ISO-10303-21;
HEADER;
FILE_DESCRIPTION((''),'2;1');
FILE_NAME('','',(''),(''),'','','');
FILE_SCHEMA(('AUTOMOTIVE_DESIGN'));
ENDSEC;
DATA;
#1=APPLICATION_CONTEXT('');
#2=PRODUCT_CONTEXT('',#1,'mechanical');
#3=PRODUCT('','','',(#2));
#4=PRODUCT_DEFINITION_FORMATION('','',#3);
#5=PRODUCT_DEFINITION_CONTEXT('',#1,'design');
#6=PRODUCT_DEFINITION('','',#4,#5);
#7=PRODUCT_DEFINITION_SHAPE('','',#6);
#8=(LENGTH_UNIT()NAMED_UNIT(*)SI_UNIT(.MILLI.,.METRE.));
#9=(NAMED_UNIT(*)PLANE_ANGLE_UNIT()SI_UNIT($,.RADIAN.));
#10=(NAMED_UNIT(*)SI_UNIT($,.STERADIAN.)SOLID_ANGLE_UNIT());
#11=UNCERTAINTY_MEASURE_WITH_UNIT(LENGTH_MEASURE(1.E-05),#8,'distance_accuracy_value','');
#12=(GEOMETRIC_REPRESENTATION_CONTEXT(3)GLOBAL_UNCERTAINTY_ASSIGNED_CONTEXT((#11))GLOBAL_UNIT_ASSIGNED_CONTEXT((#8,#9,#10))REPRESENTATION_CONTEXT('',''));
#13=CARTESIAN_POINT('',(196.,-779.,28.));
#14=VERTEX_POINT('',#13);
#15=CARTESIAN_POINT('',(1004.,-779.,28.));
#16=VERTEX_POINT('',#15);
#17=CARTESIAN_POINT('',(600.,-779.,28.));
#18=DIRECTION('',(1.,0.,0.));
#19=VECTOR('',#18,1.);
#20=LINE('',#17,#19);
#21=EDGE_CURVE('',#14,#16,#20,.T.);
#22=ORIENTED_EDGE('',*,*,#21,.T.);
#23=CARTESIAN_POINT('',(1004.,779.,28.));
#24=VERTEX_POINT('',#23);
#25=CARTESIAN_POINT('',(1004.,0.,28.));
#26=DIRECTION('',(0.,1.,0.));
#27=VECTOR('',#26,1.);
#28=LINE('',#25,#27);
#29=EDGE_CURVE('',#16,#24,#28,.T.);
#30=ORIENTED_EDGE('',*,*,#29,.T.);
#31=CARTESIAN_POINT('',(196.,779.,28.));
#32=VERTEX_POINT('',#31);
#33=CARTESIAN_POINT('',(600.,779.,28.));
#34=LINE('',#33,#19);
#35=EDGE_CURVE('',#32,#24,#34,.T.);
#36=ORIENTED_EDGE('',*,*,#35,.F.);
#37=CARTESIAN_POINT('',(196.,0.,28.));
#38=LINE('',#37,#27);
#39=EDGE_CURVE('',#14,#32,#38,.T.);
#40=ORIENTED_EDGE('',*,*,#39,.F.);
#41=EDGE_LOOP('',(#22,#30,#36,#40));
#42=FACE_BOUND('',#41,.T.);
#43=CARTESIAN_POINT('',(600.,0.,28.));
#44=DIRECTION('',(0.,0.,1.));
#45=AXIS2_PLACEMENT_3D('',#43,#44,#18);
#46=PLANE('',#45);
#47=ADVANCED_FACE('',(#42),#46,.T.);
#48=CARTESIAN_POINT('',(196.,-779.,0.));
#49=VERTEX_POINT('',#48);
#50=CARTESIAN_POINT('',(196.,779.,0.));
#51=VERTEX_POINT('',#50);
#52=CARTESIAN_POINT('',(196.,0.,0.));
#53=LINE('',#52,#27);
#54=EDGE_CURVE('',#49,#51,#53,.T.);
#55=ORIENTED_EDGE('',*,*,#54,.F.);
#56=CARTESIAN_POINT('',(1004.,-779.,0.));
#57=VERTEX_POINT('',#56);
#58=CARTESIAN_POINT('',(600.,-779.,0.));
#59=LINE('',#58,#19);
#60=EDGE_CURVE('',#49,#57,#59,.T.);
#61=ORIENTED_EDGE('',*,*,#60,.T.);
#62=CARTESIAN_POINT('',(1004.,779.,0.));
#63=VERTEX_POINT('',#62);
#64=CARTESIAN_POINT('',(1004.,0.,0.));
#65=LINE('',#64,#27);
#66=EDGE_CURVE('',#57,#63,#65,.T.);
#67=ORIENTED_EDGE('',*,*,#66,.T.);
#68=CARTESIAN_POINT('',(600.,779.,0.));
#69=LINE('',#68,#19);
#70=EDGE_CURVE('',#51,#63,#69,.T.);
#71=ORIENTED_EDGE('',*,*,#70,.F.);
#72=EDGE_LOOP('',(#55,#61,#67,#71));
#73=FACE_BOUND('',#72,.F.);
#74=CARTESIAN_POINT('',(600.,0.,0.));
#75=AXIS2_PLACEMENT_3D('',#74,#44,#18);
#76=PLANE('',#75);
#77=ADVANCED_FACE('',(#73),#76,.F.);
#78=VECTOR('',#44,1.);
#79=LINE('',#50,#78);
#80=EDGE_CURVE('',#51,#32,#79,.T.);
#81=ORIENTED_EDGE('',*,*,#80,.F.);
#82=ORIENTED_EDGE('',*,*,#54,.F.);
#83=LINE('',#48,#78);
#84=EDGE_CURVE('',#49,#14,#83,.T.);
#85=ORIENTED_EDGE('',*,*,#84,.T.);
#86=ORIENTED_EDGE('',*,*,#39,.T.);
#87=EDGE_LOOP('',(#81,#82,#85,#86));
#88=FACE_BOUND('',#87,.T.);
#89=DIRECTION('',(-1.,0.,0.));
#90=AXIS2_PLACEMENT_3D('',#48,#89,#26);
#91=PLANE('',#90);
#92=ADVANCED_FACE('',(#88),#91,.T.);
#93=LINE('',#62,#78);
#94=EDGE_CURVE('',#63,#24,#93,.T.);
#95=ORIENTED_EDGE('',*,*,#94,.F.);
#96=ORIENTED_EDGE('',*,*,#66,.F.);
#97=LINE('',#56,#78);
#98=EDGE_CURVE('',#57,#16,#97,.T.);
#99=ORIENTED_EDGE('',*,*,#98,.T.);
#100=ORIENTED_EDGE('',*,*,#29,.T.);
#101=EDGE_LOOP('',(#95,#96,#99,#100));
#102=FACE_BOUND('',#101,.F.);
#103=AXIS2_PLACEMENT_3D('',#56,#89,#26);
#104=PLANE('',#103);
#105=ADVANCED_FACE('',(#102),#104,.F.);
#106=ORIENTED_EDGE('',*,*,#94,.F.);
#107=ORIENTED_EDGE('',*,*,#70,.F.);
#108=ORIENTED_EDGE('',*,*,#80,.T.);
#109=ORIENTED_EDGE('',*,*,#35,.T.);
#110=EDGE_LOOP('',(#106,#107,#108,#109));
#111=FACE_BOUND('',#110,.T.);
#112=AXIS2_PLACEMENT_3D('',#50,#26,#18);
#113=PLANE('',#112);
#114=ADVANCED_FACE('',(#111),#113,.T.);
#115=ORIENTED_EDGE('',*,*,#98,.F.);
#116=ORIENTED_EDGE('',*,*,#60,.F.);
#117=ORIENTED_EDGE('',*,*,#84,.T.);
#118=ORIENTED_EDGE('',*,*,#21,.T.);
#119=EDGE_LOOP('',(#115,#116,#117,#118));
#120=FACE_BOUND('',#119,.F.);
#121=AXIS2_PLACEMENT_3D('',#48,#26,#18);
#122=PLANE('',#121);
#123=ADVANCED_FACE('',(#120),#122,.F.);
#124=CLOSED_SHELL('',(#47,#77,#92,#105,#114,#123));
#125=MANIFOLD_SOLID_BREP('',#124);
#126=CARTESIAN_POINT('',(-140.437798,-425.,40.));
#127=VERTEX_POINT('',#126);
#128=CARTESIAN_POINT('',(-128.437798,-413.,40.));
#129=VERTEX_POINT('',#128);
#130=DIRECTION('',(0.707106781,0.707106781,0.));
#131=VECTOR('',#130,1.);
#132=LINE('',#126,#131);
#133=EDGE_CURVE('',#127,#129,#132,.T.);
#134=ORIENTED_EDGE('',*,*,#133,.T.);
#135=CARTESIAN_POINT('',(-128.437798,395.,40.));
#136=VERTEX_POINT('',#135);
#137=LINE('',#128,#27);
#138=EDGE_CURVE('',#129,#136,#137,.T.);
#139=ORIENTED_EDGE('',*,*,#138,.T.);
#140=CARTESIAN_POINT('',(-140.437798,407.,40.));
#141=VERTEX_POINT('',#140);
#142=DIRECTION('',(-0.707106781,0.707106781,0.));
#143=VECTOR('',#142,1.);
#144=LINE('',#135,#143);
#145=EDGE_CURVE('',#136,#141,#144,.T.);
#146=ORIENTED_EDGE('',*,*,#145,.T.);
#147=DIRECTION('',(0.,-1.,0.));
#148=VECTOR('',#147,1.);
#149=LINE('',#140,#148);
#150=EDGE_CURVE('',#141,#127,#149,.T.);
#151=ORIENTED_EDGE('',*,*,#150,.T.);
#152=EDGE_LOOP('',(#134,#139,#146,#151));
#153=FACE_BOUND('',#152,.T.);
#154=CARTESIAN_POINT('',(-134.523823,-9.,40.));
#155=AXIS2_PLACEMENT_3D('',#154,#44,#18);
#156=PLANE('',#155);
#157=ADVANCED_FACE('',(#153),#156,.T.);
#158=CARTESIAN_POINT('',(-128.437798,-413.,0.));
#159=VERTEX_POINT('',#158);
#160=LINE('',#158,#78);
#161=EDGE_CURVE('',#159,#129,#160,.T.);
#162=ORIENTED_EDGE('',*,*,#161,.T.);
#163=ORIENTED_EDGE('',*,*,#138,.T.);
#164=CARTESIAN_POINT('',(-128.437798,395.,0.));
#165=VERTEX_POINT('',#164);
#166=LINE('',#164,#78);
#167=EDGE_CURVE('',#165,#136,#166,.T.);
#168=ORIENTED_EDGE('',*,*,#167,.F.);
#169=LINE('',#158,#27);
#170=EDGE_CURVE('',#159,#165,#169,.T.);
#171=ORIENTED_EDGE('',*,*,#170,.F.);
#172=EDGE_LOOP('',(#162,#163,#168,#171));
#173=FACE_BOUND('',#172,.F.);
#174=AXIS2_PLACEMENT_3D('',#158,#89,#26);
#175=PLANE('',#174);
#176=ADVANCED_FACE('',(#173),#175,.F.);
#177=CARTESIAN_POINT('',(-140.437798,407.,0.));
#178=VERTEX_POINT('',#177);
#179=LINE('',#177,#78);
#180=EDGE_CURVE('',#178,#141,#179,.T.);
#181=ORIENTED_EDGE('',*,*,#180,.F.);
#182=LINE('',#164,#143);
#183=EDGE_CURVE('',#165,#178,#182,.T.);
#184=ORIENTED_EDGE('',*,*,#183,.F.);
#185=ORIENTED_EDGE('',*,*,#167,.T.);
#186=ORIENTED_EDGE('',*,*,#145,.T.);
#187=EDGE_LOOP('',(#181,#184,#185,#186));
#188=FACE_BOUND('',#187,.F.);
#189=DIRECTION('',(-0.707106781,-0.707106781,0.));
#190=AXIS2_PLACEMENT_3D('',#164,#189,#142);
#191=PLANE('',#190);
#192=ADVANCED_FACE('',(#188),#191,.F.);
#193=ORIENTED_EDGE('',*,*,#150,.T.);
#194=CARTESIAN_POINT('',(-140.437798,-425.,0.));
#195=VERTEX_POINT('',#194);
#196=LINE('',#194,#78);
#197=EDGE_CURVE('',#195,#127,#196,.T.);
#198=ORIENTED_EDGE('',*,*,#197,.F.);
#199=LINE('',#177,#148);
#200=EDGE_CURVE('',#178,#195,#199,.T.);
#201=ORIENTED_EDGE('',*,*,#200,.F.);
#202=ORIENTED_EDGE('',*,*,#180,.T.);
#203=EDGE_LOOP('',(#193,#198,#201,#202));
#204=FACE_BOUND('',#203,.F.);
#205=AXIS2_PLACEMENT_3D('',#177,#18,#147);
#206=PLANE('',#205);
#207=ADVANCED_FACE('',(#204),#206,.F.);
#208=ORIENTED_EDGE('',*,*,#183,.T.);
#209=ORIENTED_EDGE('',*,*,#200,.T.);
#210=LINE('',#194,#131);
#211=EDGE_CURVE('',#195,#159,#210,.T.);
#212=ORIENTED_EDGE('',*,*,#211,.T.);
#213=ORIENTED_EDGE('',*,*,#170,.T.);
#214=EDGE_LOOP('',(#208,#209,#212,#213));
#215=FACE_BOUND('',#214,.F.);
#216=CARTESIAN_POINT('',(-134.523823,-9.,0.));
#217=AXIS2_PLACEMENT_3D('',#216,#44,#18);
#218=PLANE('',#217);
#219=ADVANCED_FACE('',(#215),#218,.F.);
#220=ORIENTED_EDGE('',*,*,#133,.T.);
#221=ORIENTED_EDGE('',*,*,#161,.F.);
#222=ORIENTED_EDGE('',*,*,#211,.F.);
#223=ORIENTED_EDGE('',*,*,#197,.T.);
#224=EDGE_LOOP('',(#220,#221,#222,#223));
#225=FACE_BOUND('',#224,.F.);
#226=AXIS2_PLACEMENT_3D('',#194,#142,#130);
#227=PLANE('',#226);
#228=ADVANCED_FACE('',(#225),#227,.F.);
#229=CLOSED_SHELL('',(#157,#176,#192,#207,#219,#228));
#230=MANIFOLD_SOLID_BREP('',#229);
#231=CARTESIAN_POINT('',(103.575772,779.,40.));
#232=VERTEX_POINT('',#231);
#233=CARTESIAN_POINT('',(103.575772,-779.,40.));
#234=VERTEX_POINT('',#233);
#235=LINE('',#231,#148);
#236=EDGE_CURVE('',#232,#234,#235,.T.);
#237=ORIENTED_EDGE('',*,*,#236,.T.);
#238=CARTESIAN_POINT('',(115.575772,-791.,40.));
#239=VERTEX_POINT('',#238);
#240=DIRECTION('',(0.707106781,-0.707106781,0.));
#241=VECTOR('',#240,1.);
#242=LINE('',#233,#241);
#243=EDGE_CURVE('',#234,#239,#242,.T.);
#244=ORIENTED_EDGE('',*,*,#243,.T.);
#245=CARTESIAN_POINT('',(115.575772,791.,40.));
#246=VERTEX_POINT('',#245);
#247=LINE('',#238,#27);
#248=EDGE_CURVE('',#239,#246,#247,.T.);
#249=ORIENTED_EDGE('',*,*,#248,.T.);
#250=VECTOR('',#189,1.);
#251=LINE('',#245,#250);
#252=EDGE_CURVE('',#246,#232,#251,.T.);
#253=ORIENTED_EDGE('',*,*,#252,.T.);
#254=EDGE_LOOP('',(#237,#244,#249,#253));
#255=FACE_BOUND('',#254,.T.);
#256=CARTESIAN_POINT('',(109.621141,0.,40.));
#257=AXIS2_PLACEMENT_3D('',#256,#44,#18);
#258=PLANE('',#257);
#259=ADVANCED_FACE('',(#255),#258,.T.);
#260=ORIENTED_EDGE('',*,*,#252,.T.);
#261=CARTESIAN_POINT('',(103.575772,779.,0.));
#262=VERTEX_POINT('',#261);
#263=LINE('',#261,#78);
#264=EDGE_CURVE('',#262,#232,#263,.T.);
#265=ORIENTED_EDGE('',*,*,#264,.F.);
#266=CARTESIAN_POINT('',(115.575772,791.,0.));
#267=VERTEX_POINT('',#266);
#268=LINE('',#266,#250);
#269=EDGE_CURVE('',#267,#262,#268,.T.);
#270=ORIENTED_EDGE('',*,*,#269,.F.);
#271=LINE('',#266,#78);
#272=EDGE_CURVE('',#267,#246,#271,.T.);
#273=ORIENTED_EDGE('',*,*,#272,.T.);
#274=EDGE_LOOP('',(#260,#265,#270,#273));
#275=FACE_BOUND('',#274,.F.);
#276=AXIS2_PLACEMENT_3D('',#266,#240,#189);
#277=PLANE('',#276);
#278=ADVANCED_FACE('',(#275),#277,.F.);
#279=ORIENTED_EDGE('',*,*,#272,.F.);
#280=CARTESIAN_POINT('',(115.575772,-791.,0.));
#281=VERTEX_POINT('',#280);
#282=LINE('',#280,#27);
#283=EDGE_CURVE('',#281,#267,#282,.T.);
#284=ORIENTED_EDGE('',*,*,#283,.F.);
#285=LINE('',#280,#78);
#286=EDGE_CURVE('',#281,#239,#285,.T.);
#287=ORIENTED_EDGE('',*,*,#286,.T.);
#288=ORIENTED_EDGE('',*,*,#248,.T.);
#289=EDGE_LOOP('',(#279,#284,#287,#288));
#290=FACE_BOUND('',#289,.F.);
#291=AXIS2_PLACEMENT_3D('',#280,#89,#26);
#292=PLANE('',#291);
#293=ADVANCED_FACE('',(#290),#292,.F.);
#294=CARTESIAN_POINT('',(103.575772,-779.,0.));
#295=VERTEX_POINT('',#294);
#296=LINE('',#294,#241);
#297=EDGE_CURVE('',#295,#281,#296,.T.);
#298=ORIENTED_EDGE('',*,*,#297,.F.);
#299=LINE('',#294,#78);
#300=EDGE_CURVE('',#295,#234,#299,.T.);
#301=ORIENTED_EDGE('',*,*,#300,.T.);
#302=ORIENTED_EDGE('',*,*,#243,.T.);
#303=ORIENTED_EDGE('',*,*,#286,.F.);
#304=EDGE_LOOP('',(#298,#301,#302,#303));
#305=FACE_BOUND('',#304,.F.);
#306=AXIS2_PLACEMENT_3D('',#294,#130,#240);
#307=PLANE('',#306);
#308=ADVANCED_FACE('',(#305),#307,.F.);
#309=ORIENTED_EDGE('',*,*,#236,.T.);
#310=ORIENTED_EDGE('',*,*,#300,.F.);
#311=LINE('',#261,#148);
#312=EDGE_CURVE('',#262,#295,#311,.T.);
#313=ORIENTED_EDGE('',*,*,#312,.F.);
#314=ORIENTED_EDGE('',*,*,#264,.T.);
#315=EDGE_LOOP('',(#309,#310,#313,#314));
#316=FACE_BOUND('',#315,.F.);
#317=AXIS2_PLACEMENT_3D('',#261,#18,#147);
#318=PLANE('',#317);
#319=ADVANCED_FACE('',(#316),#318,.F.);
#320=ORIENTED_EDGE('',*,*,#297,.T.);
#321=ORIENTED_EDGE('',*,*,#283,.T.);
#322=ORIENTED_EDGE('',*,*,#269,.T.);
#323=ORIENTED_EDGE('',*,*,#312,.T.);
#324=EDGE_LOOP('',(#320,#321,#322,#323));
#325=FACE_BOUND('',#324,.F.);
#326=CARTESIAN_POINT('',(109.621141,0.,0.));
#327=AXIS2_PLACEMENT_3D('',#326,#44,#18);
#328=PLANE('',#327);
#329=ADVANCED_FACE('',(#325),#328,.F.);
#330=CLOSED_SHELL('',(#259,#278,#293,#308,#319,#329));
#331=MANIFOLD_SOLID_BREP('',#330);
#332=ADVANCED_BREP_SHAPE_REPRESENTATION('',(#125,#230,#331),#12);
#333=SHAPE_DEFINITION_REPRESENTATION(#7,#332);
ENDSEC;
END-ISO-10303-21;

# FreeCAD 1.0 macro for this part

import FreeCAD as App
import Part
import Sketcher

V = App.Vector

doc = App.newDocument("Part")
params = doc.addObject("Spreadsheet::Sheet", "Params")
for row, (alias, value) in enumerate([
    ("sketch1_height", "832 mm"),
    ("sketch1_height2", "808 mm"),
    ("pad1_length", "40 mm"),
    ("sketch2_height", "1582 mm"),
    ("sketch2_height2", "1558 mm"),
    ("pad2_length", "40 mm"),
    ("sketch3_width", "808 mm"),
    ("sketch3_height", "1558 mm"),
    ("pad3_length", "28 mm"),
], start=1):
    params.set(f"A{row}", alias)
    params.set(f"B{row}", "=" + value)
    params.setAlias(f"B{row}", alias)

body = doc.addObject("PartDesign::Body", "Body")

# Sketch on XY plane
sketch1 = body.newObject("Sketcher::SketchObject", "Sketch")
sketch1.AttachmentSupport = (doc.getObject("XY_Plane"), [""])
sketch1.MapMode = "FlatFace"
sketch1.addGeometry([
    Part.LineSegment(V(-140, 407, 0), V(-140, -425, 0)),
    Part.LineSegment(V(-140, -425, 0), V(-128, -413, 0)),
    Part.LineSegment(V(-128, -413, 0), V(-128, 395, 0)),
    Part.LineSegment(V(-128, 395, 0), V(-140, 407, 0)),
], False)
sketch1.addConstraint([
    Sketcher.Constraint("Coincident", 0, 2, 1, 1),
    Sketcher.Constraint("Coincident", 1, 2, 2, 1),
    Sketcher.Constraint("Coincident", 2, 2, 3, 1),
    Sketcher.Constraint("Coincident", 3, 2, 0, 1),
    Sketcher.Constraint("Vertical", 0),
    Sketcher.Constraint("Vertical", 2),
    Sketcher.Constraint("Perpendicular", 1, 3),
    Sketcher.Constraint("Equal", 1, 3),
    Sketcher.Constraint("DistanceY", 0, 2, 0, 1, 832.0),
    Sketcher.Constraint("DistanceY", 2, 1, 2, 2, 808.0),
    Sketcher.Constraint("DistanceY", 0, 2, -1, 1, 425.0),
    Sketcher.Constraint("DistanceX", 0, 2, -1, 1, 140.437798),
])
sketch1.setExpression("Constraints[8]", "Params.sketch1_height")
sketch1.setExpression("Constraints[9]", "Params.sketch1_height2")
pad1 = body.newObject("PartDesign::Pad", "Pad")
pad1.Profile = sketch1
pad1.setExpression("Length", "Params.pad1_length")
body2 = doc.addObject("PartDesign::Body", "Body001")

# Sketch on XY plane
sketch2 = body2.newObject("Sketcher::SketchObject", "Sketch001")
sketch2.AttachmentSupport = (doc.getObject("XY_Plane001"), [""])
sketch2.MapMode = "FlatFace"
sketch2.addGeometry([
    Part.LineSegment(V(104, -779, 0), V(116, -791, 0)),
    Part.LineSegment(V(116, -791, 0), V(116, 791, 0)),
    Part.LineSegment(V(116, 791, 0), V(104, 779, 0)),
    Part.LineSegment(V(104, 779, 0), V(104, -779, 0)),
], False)
sketch2.addConstraint([
    Sketcher.Constraint("Coincident", 0, 2, 1, 1),
    Sketcher.Constraint("Coincident", 1, 2, 2, 1),
    Sketcher.Constraint("Coincident", 2, 2, 3, 1),
    Sketcher.Constraint("Coincident", 3, 2, 0, 1),
    Sketcher.Constraint("Vertical", 1),
    Sketcher.Constraint("Vertical", 3),
    Sketcher.Constraint("Perpendicular", 0, 2),
    Sketcher.Constraint("Equal", 0, 2),
    Sketcher.Constraint("DistanceY", 1, 1, 1, 2, 1582.0),
    Sketcher.Constraint("DistanceY", 3, 2, 3, 1, 1558.0),
    Sketcher.Constraint("DistanceY", 0, 2, -1, 1, 791.0),
    Sketcher.Constraint("DistanceX", -1, 1, 0, 2, 115.575772),
])
sketch2.setExpression("Constraints[8]", "Params.sketch2_height")
sketch2.setExpression("Constraints[9]", "Params.sketch2_height2")
pad2 = body2.newObject("PartDesign::Pad", "Pad001")
pad2.Profile = sketch2
pad2.setExpression("Length", "Params.pad2_length")
body3 = doc.addObject("PartDesign::Body", "Body002")

# Sketch on XY plane
sketch3 = body3.newObject("Sketcher::SketchObject", "Sketch002")
sketch3.AttachmentSupport = (doc.getObject("XY_Plane002"), [""])
sketch3.MapMode = "FlatFace"
sketch3.addGeometry([
    Part.LineSegment(V(196, 779, 0), V(196, -779, 0)),
    Part.LineSegment(V(196, -779, 0), V(1004, -779, 0)),
    Part.LineSegment(V(1004, -779, 0), V(1004, 779, 0)),
    Part.LineSegment(V(1004, 779, 0), V(196, 779, 0)),
], False)
sketch3.addConstraint([
    Sketcher.Constraint("Coincident", 0, 2, 1, 1),
    Sketcher.Constraint("Coincident", 1, 2, 2, 1),
    Sketcher.Constraint("Coincident", 2, 2, 3, 1),
    Sketcher.Constraint("Coincident", 3, 2, 0, 1),
    Sketcher.Constraint("Vertical", 0),
    Sketcher.Constraint("Horizontal", 1),
    Sketcher.Constraint("Vertical", 2),
    Sketcher.Constraint("Horizontal", 3),
    Sketcher.Constraint("DistanceX", 1, 1, 1, 2, 808.0),
    Sketcher.Constraint("DistanceY", 0, 2, 0, 1, 1558.0),
    Sketcher.Constraint("DistanceX", -1, 1, 0, 2, 196.0),
    Sketcher.Constraint("DistanceY", 0, 2, -1, 1, 779.0),
])
sketch3.setExpression("Constraints[8]", "Params.sketch3_width")
sketch3.setExpression("Constraints[9]", "Params.sketch3_height")
pad3 = body3.newObject("PartDesign::Pad", "Pad002")
pad3.Profile = sketch3
pad3.setExpression("Length", "Params.pad3_length")

doc.recompute()
